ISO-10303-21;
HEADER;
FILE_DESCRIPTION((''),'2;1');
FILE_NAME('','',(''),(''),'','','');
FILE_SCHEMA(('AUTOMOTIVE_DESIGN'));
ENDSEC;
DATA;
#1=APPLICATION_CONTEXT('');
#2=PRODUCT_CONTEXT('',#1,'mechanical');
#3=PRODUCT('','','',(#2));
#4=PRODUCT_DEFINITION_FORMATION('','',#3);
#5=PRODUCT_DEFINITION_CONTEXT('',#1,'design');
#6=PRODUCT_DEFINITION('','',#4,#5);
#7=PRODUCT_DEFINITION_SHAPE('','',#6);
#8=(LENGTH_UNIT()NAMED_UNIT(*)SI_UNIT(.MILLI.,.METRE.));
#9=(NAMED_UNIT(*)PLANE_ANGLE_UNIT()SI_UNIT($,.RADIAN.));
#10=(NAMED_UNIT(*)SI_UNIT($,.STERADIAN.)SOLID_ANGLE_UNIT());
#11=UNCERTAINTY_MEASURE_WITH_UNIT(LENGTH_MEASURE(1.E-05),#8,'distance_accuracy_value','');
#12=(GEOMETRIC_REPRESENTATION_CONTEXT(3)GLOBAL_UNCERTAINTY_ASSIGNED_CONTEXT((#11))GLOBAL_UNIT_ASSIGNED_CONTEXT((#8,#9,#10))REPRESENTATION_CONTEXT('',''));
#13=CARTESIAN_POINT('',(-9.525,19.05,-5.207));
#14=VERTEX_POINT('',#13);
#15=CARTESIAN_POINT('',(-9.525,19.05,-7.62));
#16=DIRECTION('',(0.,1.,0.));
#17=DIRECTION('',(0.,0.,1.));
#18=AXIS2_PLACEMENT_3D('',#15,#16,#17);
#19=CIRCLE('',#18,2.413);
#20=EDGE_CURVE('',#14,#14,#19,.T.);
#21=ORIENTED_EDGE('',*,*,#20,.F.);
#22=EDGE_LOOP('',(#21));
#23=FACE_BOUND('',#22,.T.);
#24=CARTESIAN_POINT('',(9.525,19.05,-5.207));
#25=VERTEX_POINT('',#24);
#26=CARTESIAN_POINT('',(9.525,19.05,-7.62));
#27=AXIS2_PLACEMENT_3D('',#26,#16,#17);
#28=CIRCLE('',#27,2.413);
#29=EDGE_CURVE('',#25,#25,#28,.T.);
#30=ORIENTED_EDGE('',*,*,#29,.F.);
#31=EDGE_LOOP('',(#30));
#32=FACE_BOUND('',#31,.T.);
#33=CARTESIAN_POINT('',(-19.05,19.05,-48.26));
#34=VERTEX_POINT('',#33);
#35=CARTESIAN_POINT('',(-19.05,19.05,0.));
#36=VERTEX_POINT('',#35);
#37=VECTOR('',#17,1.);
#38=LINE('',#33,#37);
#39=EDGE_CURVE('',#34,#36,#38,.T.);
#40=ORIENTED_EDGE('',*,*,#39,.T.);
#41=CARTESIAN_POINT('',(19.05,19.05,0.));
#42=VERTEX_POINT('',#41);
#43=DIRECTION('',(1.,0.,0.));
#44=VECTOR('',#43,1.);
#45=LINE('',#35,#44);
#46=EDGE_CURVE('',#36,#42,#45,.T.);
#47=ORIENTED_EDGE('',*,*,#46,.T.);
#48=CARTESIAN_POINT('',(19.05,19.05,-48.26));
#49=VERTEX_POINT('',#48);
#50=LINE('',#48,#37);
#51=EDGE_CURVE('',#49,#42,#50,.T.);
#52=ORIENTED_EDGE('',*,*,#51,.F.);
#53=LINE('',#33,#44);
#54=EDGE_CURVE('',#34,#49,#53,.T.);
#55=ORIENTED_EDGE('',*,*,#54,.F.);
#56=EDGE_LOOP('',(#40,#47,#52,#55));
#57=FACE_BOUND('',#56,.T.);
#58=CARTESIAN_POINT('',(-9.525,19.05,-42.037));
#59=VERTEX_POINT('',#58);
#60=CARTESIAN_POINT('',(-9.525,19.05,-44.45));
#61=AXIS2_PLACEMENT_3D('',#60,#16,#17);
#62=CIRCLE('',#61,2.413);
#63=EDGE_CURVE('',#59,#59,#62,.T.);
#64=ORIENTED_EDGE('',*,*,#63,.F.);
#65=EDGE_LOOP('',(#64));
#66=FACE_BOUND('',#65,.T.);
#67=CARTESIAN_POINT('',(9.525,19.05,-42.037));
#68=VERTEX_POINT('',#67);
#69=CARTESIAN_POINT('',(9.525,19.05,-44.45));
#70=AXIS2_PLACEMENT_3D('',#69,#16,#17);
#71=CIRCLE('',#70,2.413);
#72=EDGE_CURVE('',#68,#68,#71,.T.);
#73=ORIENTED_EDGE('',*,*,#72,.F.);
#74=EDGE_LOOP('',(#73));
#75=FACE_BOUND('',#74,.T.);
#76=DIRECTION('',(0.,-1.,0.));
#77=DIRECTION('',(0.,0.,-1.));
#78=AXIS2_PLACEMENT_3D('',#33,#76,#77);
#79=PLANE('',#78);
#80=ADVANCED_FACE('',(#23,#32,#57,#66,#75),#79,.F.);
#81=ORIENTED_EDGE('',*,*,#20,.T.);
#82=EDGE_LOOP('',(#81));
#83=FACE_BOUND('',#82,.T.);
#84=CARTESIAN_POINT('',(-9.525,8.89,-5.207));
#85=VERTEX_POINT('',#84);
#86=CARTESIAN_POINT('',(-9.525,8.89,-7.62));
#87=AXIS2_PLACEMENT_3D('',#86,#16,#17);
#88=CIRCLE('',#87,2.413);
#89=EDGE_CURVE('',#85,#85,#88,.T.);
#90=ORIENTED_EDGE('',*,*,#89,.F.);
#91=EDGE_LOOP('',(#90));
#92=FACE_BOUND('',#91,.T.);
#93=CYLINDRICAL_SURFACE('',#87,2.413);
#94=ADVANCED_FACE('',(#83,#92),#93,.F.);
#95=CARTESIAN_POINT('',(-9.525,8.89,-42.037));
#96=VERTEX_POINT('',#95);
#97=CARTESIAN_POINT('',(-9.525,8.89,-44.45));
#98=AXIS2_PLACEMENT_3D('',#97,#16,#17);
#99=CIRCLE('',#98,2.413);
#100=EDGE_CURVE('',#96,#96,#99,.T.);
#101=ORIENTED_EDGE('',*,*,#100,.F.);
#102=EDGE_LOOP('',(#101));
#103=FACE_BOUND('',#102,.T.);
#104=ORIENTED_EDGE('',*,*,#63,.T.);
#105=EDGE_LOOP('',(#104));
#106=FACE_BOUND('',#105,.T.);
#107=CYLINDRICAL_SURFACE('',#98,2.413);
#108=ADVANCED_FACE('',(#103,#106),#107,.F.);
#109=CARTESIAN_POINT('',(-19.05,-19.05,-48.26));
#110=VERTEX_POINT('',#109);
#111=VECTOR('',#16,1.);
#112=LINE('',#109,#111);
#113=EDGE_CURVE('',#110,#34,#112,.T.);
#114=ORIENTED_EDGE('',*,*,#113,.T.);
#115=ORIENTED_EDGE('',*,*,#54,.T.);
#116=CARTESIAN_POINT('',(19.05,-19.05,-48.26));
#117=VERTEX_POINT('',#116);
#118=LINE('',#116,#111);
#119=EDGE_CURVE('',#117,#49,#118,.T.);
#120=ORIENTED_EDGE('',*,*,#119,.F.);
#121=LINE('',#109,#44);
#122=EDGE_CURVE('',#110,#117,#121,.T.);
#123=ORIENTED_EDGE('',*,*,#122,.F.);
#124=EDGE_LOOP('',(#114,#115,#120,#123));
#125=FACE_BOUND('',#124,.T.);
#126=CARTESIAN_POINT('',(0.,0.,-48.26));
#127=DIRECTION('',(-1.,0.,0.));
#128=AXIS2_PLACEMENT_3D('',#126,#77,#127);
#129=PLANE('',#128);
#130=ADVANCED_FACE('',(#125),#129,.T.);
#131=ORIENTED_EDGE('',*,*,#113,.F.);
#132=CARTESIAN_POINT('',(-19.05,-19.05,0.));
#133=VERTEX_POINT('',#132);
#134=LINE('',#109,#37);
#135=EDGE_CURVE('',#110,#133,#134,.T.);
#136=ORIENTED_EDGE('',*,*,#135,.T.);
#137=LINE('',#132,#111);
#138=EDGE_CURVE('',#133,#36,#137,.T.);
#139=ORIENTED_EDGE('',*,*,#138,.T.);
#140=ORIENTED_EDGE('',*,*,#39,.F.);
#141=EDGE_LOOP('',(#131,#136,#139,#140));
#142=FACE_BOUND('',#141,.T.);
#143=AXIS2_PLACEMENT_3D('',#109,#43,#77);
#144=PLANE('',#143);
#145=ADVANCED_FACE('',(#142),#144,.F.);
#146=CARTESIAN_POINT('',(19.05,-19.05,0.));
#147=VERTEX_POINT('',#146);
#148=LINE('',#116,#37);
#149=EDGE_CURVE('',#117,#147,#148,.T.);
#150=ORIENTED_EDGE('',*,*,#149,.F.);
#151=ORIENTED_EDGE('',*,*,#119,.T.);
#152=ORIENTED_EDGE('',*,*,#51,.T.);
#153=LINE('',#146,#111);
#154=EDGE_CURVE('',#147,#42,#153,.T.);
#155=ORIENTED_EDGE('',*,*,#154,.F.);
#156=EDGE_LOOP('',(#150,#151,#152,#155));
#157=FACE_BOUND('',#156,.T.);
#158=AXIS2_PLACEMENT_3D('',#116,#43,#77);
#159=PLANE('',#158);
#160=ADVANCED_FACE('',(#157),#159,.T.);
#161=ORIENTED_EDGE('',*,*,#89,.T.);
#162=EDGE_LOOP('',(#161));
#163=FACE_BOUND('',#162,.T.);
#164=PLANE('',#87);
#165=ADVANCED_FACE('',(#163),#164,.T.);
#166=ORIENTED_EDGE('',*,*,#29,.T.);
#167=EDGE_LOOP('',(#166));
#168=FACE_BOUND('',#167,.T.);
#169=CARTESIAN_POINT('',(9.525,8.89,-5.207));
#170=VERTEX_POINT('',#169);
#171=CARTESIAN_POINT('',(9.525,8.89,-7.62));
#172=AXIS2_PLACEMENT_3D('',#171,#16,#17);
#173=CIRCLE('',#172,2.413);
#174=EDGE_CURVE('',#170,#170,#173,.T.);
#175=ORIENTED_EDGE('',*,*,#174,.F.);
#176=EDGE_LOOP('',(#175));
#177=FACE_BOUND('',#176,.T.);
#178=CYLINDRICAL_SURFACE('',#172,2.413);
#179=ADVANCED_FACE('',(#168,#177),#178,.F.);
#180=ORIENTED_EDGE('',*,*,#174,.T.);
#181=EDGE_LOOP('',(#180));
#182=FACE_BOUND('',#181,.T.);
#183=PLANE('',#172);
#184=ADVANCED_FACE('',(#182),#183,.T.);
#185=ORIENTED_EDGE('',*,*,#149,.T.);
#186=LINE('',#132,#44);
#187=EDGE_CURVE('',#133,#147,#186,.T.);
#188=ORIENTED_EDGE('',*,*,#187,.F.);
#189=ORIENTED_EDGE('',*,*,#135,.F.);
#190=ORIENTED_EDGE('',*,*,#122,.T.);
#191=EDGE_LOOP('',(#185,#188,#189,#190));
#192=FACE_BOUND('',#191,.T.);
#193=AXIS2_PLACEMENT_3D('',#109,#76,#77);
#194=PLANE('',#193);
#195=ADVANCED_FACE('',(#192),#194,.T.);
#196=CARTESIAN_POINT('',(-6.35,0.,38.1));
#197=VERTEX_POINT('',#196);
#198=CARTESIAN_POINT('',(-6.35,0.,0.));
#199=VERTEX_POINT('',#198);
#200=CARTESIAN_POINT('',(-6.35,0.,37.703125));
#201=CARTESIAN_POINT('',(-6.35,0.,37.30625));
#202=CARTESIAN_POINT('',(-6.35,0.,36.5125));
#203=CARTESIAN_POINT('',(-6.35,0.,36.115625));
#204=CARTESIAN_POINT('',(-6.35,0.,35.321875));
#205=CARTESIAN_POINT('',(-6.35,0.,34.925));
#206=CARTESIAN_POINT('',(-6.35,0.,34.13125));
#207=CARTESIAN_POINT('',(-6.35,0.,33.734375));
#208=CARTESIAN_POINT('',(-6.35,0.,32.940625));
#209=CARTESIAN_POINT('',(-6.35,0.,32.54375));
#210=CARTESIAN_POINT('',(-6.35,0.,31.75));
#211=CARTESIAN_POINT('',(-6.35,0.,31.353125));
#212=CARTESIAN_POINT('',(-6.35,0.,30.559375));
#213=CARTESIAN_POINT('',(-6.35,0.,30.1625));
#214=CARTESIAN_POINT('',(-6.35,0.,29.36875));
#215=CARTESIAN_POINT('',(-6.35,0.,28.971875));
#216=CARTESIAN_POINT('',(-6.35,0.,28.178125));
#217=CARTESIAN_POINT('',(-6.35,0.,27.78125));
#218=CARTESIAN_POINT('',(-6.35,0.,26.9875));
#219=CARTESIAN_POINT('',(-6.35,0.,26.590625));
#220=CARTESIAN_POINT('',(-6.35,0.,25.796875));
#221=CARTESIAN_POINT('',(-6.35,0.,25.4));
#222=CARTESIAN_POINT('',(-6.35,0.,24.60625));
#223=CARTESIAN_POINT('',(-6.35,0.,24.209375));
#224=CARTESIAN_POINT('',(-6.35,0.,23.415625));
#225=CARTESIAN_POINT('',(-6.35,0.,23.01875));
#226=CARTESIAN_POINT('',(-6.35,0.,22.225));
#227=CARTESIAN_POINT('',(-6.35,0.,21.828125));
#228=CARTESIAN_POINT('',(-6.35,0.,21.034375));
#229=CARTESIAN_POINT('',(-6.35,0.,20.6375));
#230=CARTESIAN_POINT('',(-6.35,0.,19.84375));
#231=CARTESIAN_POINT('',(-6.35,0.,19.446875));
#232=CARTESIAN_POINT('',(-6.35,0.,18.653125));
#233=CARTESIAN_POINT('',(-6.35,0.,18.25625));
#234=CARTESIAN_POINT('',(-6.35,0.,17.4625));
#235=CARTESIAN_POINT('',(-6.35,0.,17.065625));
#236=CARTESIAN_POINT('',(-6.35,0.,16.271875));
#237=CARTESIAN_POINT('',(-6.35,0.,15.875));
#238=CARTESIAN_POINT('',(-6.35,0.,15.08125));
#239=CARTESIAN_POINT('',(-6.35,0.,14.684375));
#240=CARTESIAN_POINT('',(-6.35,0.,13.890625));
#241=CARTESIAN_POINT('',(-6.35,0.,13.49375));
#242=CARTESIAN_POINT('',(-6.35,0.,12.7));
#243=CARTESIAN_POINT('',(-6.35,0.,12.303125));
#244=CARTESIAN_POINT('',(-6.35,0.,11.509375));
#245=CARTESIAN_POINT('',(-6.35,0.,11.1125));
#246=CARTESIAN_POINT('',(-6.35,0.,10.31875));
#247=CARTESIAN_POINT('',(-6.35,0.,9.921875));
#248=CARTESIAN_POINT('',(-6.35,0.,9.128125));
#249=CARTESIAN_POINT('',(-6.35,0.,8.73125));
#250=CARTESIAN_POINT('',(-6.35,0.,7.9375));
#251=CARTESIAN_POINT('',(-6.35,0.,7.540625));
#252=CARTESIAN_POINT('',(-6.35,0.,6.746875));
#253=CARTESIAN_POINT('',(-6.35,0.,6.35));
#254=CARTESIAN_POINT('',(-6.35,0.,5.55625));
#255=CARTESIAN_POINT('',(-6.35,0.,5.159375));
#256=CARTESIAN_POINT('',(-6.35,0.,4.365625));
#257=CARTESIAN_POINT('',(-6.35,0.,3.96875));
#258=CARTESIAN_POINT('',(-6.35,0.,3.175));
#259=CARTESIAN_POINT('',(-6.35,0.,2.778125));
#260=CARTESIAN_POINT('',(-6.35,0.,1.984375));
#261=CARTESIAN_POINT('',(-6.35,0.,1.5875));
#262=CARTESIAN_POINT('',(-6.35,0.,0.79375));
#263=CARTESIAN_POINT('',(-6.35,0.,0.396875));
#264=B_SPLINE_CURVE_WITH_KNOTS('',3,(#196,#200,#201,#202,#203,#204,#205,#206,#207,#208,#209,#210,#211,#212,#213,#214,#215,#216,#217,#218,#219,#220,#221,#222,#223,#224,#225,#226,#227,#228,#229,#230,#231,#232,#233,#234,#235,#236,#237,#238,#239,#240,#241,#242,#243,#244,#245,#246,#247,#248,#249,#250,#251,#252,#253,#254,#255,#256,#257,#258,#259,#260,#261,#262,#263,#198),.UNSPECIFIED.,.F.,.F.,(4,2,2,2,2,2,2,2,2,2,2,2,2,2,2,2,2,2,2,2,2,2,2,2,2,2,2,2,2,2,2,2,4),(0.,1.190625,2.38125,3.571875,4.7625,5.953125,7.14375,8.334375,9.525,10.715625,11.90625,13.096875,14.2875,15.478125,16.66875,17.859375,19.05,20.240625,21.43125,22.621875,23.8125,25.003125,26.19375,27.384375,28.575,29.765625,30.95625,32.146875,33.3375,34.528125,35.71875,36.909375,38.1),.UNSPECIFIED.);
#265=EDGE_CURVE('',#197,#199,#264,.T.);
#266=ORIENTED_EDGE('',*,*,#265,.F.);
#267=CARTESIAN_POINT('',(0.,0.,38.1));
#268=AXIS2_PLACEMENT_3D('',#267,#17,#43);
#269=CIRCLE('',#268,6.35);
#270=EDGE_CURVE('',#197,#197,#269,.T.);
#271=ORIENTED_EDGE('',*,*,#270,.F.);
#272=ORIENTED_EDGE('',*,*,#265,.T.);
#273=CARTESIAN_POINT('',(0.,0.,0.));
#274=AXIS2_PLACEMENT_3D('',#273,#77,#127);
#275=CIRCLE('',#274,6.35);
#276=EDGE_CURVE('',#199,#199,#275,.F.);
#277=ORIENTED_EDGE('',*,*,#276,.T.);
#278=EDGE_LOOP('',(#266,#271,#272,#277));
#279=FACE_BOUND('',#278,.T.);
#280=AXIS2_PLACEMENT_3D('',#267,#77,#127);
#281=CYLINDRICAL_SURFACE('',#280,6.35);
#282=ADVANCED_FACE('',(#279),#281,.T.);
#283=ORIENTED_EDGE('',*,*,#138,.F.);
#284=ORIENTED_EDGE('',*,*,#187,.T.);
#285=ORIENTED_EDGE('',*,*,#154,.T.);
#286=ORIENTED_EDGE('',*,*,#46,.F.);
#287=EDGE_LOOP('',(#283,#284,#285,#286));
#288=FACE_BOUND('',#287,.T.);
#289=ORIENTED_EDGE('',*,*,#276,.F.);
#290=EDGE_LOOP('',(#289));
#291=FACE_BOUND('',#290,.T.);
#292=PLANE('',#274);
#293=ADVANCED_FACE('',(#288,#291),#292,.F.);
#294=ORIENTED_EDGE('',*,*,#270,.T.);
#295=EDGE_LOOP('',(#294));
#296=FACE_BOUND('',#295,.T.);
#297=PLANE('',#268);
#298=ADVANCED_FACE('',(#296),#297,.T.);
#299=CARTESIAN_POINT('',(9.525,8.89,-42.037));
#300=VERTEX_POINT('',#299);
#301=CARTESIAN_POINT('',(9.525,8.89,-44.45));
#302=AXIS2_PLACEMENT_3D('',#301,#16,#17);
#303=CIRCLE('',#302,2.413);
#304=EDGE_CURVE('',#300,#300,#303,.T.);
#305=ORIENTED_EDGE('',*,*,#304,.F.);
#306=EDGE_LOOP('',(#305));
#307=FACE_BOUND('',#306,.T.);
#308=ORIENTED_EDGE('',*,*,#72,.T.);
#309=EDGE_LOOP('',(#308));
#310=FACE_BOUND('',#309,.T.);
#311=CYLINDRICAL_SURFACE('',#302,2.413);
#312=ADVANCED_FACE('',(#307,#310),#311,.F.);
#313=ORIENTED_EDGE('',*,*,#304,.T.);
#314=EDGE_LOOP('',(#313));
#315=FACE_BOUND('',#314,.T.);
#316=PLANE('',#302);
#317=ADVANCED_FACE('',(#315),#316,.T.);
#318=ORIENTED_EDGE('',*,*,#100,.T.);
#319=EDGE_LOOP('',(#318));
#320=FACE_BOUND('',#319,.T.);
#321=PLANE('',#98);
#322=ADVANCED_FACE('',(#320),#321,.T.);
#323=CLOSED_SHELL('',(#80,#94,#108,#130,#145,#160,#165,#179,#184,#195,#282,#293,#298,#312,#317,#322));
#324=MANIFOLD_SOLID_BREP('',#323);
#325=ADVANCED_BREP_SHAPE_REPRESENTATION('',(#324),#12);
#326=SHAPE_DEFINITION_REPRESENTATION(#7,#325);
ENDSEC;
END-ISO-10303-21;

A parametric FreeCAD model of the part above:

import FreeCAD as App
import Part
import Sketcher
from FreeCAD import Vector
Q = App.Units.Quantity

doc = App.newDocument("Part")
params = doc.addObject("Spreadsheet::Sheet", "Params")
for row, (alias, value) in enumerate([
    ("sketch1_width", "1.5 in"),
    ("pad1_length", "1.9 in"),
    ("sketch2_diameter", "0.5 in"),
    ("pad2_length", "1.5 in"),
    ("sketch3_diameter", "0.19 in"),
    ("pocket1_length", "0.4 in"),
], start=1):
    params.set(f"A{row}", alias)
    params.set(f"B{row}", "=" + value)
    params.setAlias(f"B{row}", alias)

body = doc.addObject("PartDesign::Body", "Body")

sketch1 = body.newObject("Sketcher::SketchObject", "Sketch")
sketch1.AttachmentSupport = (doc.getObject("XY_Plane"), [""])
sketch1.MapMode = "FlatFace"
sketch1.addGeometry(Part.LineSegment(Vector(-19, 19, 0), Vector(-19, -19, 0)), False)
sketch1.addGeometry(Part.LineSegment(Vector(-19, -19, 0), Vector(19, -19, 0)), False)
sketch1.addGeometry(Part.LineSegment(Vector(19, -19, 0), Vector(19, 19, 0)), False)
sketch1.addGeometry(Part.LineSegment(Vector(19, 19, 0), Vector(-19, 19, 0)), False)
sketch1.addConstraint(Sketcher.Constraint("Coincident", 0, 2, 1, 1))
sketch1.addConstraint(Sketcher.Constraint("Coincident", 1, 2, 2, 1))
sketch1.addConstraint(Sketcher.Constraint("Coincident", 2, 2, 3, 1))
sketch1.addConstraint(Sketcher.Constraint("Coincident", 3, 2, 0, 1))
sketch1.addConstraint(Sketcher.Constraint("Vertical", 0))
sketch1.addConstraint(Sketcher.Constraint("Horizontal", 1))
sketch1.addConstraint(Sketcher.Constraint("Vertical", 2))
sketch1.addConstraint(Sketcher.Constraint("Horizontal", 3))
sketch1.addConstraint(Sketcher.Constraint("Symmetric", 0, 2, 2, 2, -1, 1))
sketch1.addConstraint(Sketcher.Constraint("Equal", 3, 0))
sketch1.addConstraint(Sketcher.Constraint("DistanceX", 1, 1, 1, 2, Q("1.5 in")))
sketch1.setExpression("Constraints[10]", "Params.sketch1_width")
pad1 = body.newObject("PartDesign::Pad", "Pad")
pad1.Profile = sketch1
pad1.setExpression("Length", "Params.pad1_length")
pad1.Reversed = True

sketch2 = body.newObject("Sketcher::SketchObject", "Sketch001")
sketch2.AttachmentSupport = (doc.getObject("XY_Plane"), [""])
sketch2.MapMode = "FlatFace"
sketch2.addGeometry(Part.Circle(Vector(0, 0, 0), Vector(0, 0, 1), 6), False)
sketch2.addConstraint(Sketcher.Constraint("Coincident", 0, 3, -1, 1))
sketch2.addConstraint(Sketcher.Constraint("Diameter", 0, Q("0.5 in")))
sketch2.setExpression("Constraints[1]", "Params.sketch2_diameter")
pad2 = body.newObject("PartDesign::Pad", "Pad001")
pad2.Profile = sketch2
pad2.setExpression("Length", "Params.pad2_length")

sketch3 = body.newObject("Sketcher::SketchObject", "Sketch002")
sketch3.AttachmentSupport = (doc.getObject("XZ_Plane"), [""])
sketch3.MapMode = "FlatFace"
sketch3.AttachmentOffset = App.Placement(Vector(0, 0, -0.75 * 25.4), App.Rotation())
sketch3.addGeometry(Part.Circle(Vector(-9.5, -44.5, 0), Vector(0, 0, 1), 2.4), False)
sketch3.addGeometry(Part.Circle(Vector(9.5, -44.5, 0), Vector(0, 0, 1), 2.4), False)
sketch3.addGeometry(Part.Circle(Vector(9.5, -7.6, 0), Vector(0, 0, 1), 2.4), False)
sketch3.addGeometry(Part.Circle(Vector(-9.5, -7.6, 0), Vector(0, 0, 1), 2.4), False)
sketch3.addConstraint(Sketcher.Constraint("Equal", 0, 1))
sketch3.addConstraint(Sketcher.Constraint("Equal", 1, 2))
sketch3.addConstraint(Sketcher.Constraint("Equal", 2, 3))
sketch3.addConstraint(Sketcher.Constraint("Symmetric", 0, 3, 1, 3, -2))
sketch3.addConstraint(Sketcher.Constraint("Symmetric", 2, 3, 3, 3, -2))
sketch3.addConstraint(Sketcher.Constraint("Vertical", 1, 3, 2, 3))
sketch3.addConstraint(Sketcher.Constraint("Diameter", 0, Q("0.19 in")))
sketch3.addConstraint(Sketcher.Constraint("DistanceY", 2, 3, -1, 1, Q("0.3 in")))
sketch3.addConstraint(Sketcher.Constraint("DistanceY", 0, 3, -1, 1, Q("1.75 in")))
sketch3.addConstraint(Sketcher.Constraint("DistanceX", 0, 3, 1, 3, Q("0.75 in")))
sketch3.setExpression("Constraints[6]", "Params.sketch3_diameter")
pocket1 = body.newObject("PartDesign::Pocket", "Pocket")
pocket1.Profile = sketch3
pocket1.setExpression("Length", "Params.pocket1_length")
pocket1.Reversed = True

doc.recompute()
